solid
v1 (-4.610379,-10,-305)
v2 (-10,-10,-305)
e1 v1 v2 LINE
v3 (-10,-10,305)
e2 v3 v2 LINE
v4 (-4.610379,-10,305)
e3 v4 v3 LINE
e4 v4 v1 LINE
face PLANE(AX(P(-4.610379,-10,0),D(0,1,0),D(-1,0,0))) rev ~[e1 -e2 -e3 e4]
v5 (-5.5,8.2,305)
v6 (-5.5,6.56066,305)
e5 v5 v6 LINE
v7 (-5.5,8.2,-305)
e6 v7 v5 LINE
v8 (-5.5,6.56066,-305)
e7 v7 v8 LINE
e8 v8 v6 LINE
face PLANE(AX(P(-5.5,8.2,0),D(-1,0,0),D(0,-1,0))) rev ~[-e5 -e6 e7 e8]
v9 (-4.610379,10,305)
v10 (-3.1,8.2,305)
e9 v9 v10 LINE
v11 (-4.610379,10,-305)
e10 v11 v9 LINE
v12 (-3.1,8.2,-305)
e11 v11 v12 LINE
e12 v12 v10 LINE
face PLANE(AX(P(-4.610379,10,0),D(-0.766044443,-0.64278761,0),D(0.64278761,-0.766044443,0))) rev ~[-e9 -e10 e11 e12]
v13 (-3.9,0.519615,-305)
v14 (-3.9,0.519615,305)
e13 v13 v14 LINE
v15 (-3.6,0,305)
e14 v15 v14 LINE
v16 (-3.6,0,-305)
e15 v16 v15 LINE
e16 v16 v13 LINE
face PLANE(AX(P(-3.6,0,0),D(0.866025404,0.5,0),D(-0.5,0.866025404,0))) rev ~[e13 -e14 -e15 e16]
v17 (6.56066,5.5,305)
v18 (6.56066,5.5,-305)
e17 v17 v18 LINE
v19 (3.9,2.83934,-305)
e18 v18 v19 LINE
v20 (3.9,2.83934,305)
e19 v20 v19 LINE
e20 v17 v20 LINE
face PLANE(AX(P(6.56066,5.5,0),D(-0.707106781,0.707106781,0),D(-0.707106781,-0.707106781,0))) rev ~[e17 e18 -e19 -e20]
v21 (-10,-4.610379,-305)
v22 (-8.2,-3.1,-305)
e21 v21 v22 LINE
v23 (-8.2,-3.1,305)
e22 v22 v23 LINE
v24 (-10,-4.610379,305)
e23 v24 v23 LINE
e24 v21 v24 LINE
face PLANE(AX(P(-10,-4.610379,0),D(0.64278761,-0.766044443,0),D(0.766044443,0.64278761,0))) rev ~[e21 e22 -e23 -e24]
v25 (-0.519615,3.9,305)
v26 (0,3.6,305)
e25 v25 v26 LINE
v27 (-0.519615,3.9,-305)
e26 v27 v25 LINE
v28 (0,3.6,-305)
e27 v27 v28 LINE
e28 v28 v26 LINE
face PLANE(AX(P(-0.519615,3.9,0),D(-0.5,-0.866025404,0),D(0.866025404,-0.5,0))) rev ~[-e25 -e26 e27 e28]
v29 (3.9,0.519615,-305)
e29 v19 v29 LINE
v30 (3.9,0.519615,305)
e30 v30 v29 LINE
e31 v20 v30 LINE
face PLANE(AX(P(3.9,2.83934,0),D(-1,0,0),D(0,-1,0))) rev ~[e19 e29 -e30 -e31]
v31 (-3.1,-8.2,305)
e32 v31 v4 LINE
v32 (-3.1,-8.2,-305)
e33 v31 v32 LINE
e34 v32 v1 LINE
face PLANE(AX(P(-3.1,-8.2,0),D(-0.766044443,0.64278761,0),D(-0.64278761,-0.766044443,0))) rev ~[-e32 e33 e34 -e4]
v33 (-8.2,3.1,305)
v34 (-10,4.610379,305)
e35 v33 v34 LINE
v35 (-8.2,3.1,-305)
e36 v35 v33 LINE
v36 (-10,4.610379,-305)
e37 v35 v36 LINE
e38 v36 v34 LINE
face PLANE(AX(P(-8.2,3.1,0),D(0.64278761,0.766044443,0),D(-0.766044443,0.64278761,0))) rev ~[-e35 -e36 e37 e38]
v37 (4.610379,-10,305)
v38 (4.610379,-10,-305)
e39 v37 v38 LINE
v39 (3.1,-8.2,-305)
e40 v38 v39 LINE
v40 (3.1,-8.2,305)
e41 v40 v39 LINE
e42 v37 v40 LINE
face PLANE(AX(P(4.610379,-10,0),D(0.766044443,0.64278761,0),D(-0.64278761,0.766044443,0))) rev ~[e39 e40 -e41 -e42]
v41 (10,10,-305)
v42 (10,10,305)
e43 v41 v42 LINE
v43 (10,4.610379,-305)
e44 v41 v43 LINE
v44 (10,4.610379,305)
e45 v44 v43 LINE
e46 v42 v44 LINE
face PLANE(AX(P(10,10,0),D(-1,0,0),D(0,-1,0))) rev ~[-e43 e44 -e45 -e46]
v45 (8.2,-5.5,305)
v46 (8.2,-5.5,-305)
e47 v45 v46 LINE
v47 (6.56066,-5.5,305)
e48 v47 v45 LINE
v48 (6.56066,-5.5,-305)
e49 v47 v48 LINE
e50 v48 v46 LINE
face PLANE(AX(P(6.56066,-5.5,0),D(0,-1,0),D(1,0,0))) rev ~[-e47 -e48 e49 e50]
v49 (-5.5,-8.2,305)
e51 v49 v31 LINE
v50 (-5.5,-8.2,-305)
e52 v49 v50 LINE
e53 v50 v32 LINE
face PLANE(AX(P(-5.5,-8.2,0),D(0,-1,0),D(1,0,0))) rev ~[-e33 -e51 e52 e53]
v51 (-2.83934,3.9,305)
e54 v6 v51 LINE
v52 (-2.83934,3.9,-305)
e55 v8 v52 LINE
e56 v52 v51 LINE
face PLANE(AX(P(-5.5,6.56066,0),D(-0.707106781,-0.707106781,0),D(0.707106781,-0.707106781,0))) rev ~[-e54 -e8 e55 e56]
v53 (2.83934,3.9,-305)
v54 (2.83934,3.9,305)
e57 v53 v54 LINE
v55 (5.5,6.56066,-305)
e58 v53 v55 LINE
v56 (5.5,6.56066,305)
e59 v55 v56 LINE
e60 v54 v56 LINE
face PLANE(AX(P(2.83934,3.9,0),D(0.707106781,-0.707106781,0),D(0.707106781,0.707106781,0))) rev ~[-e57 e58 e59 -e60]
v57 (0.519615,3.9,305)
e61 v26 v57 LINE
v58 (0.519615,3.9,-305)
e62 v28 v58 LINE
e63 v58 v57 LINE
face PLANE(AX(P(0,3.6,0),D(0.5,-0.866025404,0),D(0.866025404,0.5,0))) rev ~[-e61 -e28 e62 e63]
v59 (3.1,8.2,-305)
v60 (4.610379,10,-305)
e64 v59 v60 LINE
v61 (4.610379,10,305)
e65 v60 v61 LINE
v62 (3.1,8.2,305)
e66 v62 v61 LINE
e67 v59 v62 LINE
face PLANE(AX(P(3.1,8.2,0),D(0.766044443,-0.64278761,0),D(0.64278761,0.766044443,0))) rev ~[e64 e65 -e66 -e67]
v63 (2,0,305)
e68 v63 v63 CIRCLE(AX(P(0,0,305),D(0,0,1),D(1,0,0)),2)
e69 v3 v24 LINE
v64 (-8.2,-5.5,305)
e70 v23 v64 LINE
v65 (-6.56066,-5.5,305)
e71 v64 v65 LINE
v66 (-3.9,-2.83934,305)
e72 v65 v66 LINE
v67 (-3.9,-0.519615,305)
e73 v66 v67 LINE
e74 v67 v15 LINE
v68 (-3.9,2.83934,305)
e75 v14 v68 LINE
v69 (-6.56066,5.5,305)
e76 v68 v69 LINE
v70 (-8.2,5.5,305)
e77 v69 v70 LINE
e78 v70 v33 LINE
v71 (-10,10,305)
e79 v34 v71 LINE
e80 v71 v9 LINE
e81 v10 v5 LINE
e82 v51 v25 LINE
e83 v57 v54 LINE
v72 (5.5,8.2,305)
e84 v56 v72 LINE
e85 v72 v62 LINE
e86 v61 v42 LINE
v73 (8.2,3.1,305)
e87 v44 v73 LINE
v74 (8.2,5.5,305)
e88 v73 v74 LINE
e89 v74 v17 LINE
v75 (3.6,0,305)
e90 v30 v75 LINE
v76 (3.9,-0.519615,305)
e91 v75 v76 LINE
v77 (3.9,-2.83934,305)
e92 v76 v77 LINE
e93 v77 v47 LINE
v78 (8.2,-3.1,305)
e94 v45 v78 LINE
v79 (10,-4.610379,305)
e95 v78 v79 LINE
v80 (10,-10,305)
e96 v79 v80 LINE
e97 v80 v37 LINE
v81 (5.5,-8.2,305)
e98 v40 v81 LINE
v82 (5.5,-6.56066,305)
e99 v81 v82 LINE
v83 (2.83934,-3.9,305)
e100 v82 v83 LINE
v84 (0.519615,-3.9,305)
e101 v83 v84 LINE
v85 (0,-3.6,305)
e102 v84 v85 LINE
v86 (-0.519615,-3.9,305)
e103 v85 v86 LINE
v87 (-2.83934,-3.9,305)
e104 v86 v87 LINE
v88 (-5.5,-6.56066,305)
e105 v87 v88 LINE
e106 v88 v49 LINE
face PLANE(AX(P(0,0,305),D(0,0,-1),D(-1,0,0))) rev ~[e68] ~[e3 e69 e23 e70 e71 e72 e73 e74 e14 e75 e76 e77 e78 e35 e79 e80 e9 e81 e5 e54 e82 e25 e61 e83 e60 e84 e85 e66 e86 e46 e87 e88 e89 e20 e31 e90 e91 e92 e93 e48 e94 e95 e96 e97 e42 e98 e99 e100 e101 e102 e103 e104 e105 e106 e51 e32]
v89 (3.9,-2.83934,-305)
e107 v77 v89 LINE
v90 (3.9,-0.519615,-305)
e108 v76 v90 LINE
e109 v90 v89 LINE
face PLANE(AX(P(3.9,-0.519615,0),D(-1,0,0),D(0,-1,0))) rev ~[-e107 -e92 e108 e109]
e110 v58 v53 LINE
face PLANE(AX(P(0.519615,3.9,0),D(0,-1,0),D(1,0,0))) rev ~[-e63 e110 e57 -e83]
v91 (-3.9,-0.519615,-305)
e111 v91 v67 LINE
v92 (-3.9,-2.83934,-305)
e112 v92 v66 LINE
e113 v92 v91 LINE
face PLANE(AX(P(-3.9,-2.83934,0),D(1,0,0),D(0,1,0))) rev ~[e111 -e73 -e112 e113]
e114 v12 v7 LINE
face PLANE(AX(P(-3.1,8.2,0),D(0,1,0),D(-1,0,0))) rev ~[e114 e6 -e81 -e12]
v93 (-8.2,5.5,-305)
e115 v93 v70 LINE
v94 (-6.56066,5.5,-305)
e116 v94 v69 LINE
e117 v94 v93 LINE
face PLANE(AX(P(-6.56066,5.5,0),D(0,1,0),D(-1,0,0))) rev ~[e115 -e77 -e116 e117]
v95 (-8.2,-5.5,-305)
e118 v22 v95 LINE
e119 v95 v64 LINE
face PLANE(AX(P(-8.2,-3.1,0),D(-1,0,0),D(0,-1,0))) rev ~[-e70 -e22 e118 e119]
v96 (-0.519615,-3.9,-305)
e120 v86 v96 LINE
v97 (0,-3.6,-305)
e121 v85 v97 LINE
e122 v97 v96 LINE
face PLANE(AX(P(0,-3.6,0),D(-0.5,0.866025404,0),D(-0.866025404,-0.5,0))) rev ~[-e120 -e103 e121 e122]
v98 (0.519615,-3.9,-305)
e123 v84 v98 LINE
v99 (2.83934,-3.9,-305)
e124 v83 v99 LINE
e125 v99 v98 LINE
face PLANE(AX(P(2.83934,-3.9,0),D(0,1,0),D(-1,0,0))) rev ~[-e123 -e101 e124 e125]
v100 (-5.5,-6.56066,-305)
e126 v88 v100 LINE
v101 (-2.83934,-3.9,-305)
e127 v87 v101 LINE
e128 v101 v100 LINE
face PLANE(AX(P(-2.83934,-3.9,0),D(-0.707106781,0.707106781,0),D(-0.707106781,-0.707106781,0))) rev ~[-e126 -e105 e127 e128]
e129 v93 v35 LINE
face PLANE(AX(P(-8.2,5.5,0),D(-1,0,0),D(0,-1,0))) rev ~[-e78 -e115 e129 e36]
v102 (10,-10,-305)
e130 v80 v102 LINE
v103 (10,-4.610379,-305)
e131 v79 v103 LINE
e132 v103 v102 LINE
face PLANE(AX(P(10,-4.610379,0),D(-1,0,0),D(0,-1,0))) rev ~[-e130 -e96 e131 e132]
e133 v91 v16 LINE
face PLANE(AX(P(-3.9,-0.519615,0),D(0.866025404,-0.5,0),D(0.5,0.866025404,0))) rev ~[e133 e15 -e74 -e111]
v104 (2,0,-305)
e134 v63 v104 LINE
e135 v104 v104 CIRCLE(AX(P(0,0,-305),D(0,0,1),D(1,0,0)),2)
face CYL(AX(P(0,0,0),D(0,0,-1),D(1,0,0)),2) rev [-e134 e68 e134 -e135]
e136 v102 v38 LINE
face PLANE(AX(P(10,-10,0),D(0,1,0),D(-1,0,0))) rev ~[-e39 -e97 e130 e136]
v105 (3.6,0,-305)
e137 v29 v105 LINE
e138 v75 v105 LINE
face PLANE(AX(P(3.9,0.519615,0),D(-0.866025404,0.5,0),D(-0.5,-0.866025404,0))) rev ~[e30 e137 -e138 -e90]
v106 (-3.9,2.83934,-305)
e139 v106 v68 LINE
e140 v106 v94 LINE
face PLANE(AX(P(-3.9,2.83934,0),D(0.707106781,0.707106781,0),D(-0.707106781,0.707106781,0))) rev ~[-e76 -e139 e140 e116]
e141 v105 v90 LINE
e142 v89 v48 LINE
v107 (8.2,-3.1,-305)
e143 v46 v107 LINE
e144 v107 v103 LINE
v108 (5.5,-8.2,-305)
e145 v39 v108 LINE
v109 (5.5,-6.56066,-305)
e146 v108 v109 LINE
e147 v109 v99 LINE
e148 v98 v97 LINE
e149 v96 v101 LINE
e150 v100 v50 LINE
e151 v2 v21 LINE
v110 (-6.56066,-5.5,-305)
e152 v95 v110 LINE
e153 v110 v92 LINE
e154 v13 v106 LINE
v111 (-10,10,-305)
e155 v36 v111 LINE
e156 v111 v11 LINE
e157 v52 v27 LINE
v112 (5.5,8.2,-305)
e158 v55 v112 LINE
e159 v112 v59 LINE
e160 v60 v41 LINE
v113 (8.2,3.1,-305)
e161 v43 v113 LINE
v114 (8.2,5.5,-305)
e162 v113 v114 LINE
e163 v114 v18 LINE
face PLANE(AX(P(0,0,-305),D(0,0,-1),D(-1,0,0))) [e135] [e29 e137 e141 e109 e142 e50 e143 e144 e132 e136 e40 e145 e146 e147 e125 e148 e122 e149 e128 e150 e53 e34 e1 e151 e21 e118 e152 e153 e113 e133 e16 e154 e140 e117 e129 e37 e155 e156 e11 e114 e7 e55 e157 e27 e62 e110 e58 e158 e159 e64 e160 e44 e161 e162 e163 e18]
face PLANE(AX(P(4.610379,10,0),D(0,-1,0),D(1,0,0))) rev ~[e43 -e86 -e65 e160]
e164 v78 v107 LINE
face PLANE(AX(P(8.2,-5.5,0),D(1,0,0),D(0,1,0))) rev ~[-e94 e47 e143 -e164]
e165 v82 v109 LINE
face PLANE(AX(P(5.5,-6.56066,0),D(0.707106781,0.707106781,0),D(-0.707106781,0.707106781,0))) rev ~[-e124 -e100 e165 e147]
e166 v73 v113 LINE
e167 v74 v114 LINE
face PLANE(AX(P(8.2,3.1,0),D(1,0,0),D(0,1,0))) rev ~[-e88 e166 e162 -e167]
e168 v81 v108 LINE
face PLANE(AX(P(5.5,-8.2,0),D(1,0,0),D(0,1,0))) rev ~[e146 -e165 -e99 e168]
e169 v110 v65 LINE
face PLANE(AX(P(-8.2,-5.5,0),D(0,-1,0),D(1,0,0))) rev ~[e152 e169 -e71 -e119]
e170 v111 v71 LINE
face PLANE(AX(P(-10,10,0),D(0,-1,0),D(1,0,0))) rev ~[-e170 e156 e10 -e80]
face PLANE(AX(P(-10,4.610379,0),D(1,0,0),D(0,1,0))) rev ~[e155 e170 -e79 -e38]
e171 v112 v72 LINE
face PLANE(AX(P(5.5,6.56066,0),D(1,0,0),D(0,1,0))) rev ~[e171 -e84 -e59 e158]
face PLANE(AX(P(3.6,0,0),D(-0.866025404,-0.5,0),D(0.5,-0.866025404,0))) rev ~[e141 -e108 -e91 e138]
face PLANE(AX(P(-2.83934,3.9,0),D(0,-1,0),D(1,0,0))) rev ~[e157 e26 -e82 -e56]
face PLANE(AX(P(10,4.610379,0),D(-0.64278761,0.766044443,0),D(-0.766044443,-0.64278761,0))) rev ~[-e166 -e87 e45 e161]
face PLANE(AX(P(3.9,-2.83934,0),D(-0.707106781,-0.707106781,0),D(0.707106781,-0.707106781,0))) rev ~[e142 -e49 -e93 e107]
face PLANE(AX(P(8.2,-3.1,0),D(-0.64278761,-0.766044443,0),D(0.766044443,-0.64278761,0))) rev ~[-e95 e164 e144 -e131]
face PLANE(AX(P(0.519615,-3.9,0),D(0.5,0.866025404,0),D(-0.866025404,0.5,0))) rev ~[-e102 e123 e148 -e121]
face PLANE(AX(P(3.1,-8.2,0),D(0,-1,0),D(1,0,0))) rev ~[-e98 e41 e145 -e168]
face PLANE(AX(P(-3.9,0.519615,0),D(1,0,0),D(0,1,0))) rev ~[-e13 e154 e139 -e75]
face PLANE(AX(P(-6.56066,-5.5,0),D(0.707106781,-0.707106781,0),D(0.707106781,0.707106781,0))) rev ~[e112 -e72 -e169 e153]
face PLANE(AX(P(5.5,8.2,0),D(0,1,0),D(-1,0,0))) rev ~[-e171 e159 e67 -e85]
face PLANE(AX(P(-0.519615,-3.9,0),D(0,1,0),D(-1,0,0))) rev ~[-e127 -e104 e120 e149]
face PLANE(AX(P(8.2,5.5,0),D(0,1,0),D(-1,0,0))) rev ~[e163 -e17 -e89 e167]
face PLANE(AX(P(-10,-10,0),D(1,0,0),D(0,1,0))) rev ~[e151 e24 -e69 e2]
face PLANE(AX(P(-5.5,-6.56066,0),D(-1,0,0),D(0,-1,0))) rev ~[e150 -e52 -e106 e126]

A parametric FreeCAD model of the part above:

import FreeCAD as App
import Part
import Sketcher

V = App.Vector
Q = App.Units.Quantity

doc = App.newDocument("Part")
body = doc.addObject("PartDesign::Body", "Body")

sketch1 = body.newObject("Sketcher::SketchObject", "Sketch")
sketch1.AttachmentSupport = (doc.getObject("XY_Plane"), [""])
sketch1.MapMode = "FlatFace"
sketch1.addGeometry([
    Part.LineSegment(V(10, 4.6, 0), V(10, 10, 0)),
    Part.LineSegment(V(10, 10, 0), V(4.6, 10, 0)),
    Part.LineSegment(V(4.6, 10, 0), V(3.1, 8.2, 0)),
    Part.LineSegment(V(3.1, 8.2, 0), V(5.5, 8.2, 0)),
    Part.LineSegment(V(5.5, 8.2, 0), V(5.5, 6.6, 0)),
    Part.LineSegment(V(5.5, 6.6, 0), V(2.8, 3.9, 0)),
    Part.LineSegment(V(2.8, 3.9, 0), V(0.5, 3.9, 0)),
    Part.LineSegment(V(0.5, 3.9, 0), V(0, 3.6, 0)),
    Part.LineSegment(V(0, 3.6, 0), V(-0.5, 3.9, 0)),
    Part.LineSegment(V(-0.5, 3.9, 0), V(-2.8, 3.9, 0)),
    Part.LineSegment(V(-2.8, 3.9, 0), V(-5.5, 6.6, 0)),
    Part.LineSegment(V(-5.5, 6.6, 0), V(-5.5, 8.2, 0)),
    Part.LineSegment(V(-5.5, 8.2, 0), V(-3.1, 8.2, 0)),
    Part.LineSegment(V(-3.1, 8.2, 0), V(-4.6, 10, 0)),
    Part.LineSegment(V(-4.6, 10, 0), V(-10, 10, 0)),
    Part.LineSegment(V(-10, 10, 0), V(-10, 4.6, 0)),
    Part.LineSegment(V(-10, 4.6, 0), V(-8.2, 3.1, 0)),
    Part.LineSegment(V(-8.2, 3.1, 0), V(-8.2, 5.5, 0)),
    Part.LineSegment(V(-8.2, 5.5, 0), V(-6.6, 5.5, 0)),
    Part.LineSegment(V(-6.6, 5.5, 0), V(-3.9, 2.8, 0)),
    Part.LineSegment(V(-3.9, 2.8, 0), V(-3.9, 0.5, 0)),
    Part.LineSegment(V(-3.9, 0.5, 0), V(-3.6, 0, 0)),
    Part.LineSegment(V(-3.6, 0, 0), V(-3.9, -0.5, 0)),
    Part.LineSegment(V(-3.9, -0.5, 0), V(-3.9, -2.8, 0)),
    Part.LineSegment(V(-3.9, -2.8, 0), V(-6.6, -5.5, 0)),
    Part.LineSegment(V(-6.6, -5.5, 0), V(-8.2, -5.5, 0)),
    Part.LineSegment(V(-8.2, -5.5, 0), V(-8.2, -3.1, 0)),
    Part.LineSegment(V(-8.2, -3.1, 0), V(-10, -4.6, 0)),
    Part.LineSegment(V(-10, -4.6, 0), V(-10, -10, 0)),
    Part.LineSegment(V(-10, -10, 0), V(-4.6, -10, 0)),
    Part.LineSegment(V(-4.6, -10, 0), V(-3.1, -8.2, 0)),
    Part.LineSegment(V(-3.1, -8.2, 0), V(-5.5, -8.2, 0)),
    Part.LineSegment(V(-5.5, -8.2, 0), V(-5.5, -6.6, 0)),
    Part.LineSegment(V(-5.5, -6.6, 0), V(-2.8, -3.9, 0)),
    Part.LineSegment(V(-2.8, -3.9, 0), V(-0.5, -3.9, 0)),
    Part.LineSegment(V(-0.5, -3.9, 0), V(0, -3.6, 0)),
    Part.LineSegment(V(0, -3.6, 0), V(0.5, -3.9, 0)),
    Part.LineSegment(V(0.5, -3.9, 0), V(2.8, -3.9, 0)),
    Part.LineSegment(V(2.8, -3.9, 0), V(5.5, -6.6, 0)),
    Part.LineSegment(V(5.5, -6.6, 0), V(5.5, -8.2, 0)),
    Part.LineSegment(V(5.5, -8.2, 0), V(3.1, -8.2, 0)),
    Part.LineSegment(V(3.1, -8.2, 0), V(4.6, -10, 0)),
    Part.LineSegment(V(4.6, -10, 0), V(10, -10, 0)),
    Part.LineSegment(V(10, -10, 0), V(10, -4.6, 0)),
    Part.LineSegment(V(10, -4.6, 0), V(8.2, -3.1, 0)),
    Part.LineSegment(V(8.2, -3.1, 0), V(8.2, -5.5, 0)),
    Part.LineSegment(V(8.2, -5.5, 0), V(6.6, -5.5, 0)),
    Part.LineSegment(V(6.6, -5.5, 0), V(3.9, -2.8, 0)),
    Part.LineSegment(V(3.9, -2.8, 0), V(3.9, -0.5, 0)),
    Part.LineSegment(V(3.9, -0.5, 0), V(3.6, 0, 0)),
    Part.LineSegment(V(3.6, 0, 0), V(3.9, 0.5, 0)),
    Part.LineSegment(V(3.9, 0.5, 0), V(3.9, 2.8, 0)),
    Part.LineSegment(V(3.9, 2.8, 0), V(6.6, 5.5, 0)),
    Part.LineSegment(V(6.6, 5.5, 0), V(8.2, 5.5, 0)),
    Part.LineSegment(V(8.2, 5.5, 0), V(8.2, 3.1, 0)),
    Part.LineSegment(V(8.2, 3.1, 0), V(10, 4.6, 0)),
    Part.Circle(V(0, 0, 0), V(0, 0, 1), 2),
], False)
sketch1.addConstraint([
    Sketcher.Constraint("Coincident", 0, 2, 1, 1),
    Sketcher.Constraint("Coincident", 1, 2, 2, 1),
    Sketcher.Constraint("Coincident", 2, 2, 3, 1),
    Sketcher.Constraint("Coincident", 3, 2, 4, 1),
    Sketcher.Constraint("Coincident", 4, 2, 5, 1),
    Sketcher.Constraint("Coincident", 5, 2, 6, 1),
    Sketcher.Constraint("Coincident", 6, 2, 7, 1),
    Sketcher.Constraint("Coincident", 7, 2, 8, 1),
    Sketcher.Constraint("Coincident", 8, 2, 9, 1),
    Sketcher.Constraint("Coincident", 9, 2, 10, 1),
    Sketcher.Constraint("Coincident", 10, 2, 11, 1),
    Sketcher.Constraint("Coincident", 11, 2, 12, 1),
    Sketcher.Constraint("Coincident", 12, 2, 13, 1),
    Sketcher.Constraint("Coincident", 13, 2, 14, 1),
    Sketcher.Constraint("Coincident", 14, 2, 15, 1),
    Sketcher.Constraint("Coincident", 15, 2, 16, 1),
    Sketcher.Constraint("Coincident", 16, 2, 17, 1),
    Sketcher.Constraint("Coincident", 17, 2, 18, 1),
    Sketcher.Constraint("Coincident", 18, 2, 19, 1),
    Sketcher.Constraint("Coincident", 19, 2, 20, 1),
    Sketcher.Constraint("Coincident", 20, 2, 21, 1),
    Sketcher.Constraint("Coincident", 21, 2, 22, 1),
    Sketcher.Constraint("Coincident", 22, 2, 23, 1),
    Sketcher.Constraint("Coincident", 23, 2, 24, 1),
    Sketcher.Constraint("Coincident", 24, 2, 25, 1),
    Sketcher.Constraint("Coincident", 25, 2, 26, 1),
    Sketcher.Constraint("Coincident", 26, 2, 27, 1),
    Sketcher.Constraint("Coincident", 27, 2, 28, 1),
    Sketcher.Constraint("Coincident", 28, 2, 29, 1),
    Sketcher.Constraint("Coincident", 29, 2, 30, 1),
    Sketcher.Constraint("Coincident", 30, 2, 31, 1),
    Sketcher.Constraint("Coincident", 31, 2, 32, 1),
    Sketcher.Constraint("Coincident", 32, 2, 33, 1),
    Sketcher.Constraint("Coincident", 33, 2, 34, 1),
    Sketcher.Constraint("Coincident", 34, 2, 35, 1),
    Sketcher.Constraint("Coincident", 35, 2, 36, 1),
    Sketcher.Constraint("Coincident", 36, 2, 37, 1),
    Sketcher.Constraint("Coincident", 37, 2, 38, 1),
    Sketcher.Constraint("Coincident", 38, 2, 39, 1),
    Sketcher.Constraint("Coincident", 39, 2, 40, 1),
    Sketcher.Constraint("Coincident", 40, 2, 41, 1),
    Sketcher.Constraint("Coincident", 41, 2, 42, 1),
    Sketcher.Constraint("Coincident", 42, 2, 43, 1),
    Sketcher.Constraint("Coincident", 43, 2, 44, 1),
    Sketcher.Constraint("Coincident", 44, 2, 45, 1),
    Sketcher.Constraint("Coincident", 45, 2, 46, 1),
    Sketcher.Constraint("Coincident", 46, 2, 47, 1),
    Sketcher.Constraint("Coincident", 47, 2, 48, 1),
    Sketcher.Constraint("Coincident", 48, 2, 49, 1),
    Sketcher.Constraint("Coincident", 49, 2, 50, 1),
    Sketcher.Constraint("Coincident", 50, 2, 51, 1),
    Sketcher.Constraint("Coincident", 51, 2, 52, 1),
    Sketcher.Constraint("Coincident", 52, 2, 53, 1),
    Sketcher.Constraint("Coincident", 53, 2, 54, 1),
    Sketcher.Constraint("Coincident", 54, 2, 55, 1),
    Sketcher.Constraint("Coincident", 55, 2, 0, 1),
    Sketcher.Constraint("Vertical", 0),
    Sketcher.Constraint("Horizontal", 1),
    Sketcher.Constraint("Horizontal", 3),
    Sketcher.Constraint("Vertical", 4),
    Sketcher.Constraint("Horizontal", 6),
    Sketcher.Constraint("Horizontal", 9),
    Sketcher.Constraint("Vertical", 11),
    Sketcher.Constraint("Horizontal", 12),
    Sketcher.Constraint("Horizontal", 14),
    Sketcher.Constraint("Vertical", 15),
    Sketcher.Constraint("Vertical", 17),
    Sketcher.Constraint("Horizontal", 18),
    Sketcher.Constraint("Vertical", 20),
    Sketcher.Constraint("Vertical", 23),
    Sketcher.Constraint("Horizontal", 25),
    Sketcher.Constraint("Vertical", 26),
    Sketcher.Constraint("Vertical", 28),
    Sketcher.Constraint("Horizontal", 29),
    Sketcher.Constraint("Horizontal", 31),
    Sketcher.Constraint("Vertical", 32),
    Sketcher.Constraint("Horizontal", 34),
    Sketcher.Constraint("Horizontal", 37),
    Sketcher.Constraint("Vertical", 39),
    Sketcher.Constraint("Horizontal", 40),
    Sketcher.Constraint("Horizontal", 42),
    Sketcher.Constraint("Vertical", 43),
    Sketcher.Constraint("Vertical", 45),
    Sketcher.Constraint("Horizontal", 46),
    Sketcher.Constraint("Vertical", 48),
    Sketcher.Constraint("Vertical", 51),
    Sketcher.Constraint("Horizontal", 53),
    Sketcher.Constraint("Vertical", 54),
    Sketcher.Constraint("Coincident", 56, 3, -1, 1),
    Sketcher.Constraint("Symmetric", 0, 2, 28, 2, -1, 1),
    Sketcher.Constraint("Symmetric", 2, 2, 30, 2, -1, 1),
    Sketcher.Constraint("Symmetric", 4, 2, 32, 2, -1, 1),
    Sketcher.Constraint("Symmetric", 5, 2, 33, 2, -1, 1),
    Sketcher.Constraint("Symmetric", 7, 2, 35, 2, -1, 1),
    Sketcher.Constraint("Symmetric", 8, 2, 36, 2, -1, 1),
    Sketcher.Constraint("Symmetric", 10, 2, 38, 2, -1, 1),
    Sketcher.Constraint("Symmetric", 12, 2, 40, 2, -1, 1),
    Sketcher.Constraint("Symmetric", 13, 2, 41, 2, -1, 1),
    Sketcher.Constraint("Symmetric", 15, 2, 43, 2, -1, 1),
    Sketcher.Constraint("Symmetric", 16, 2, 44, 2, -1, 1),
    Sketcher.Constraint("Symmetric", 18, 2, 46, 2, -1, 1),
    Sketcher.Constraint("Symmetric", 19, 2, 47, 2, -1, 1),
    Sketcher.Constraint("Symmetric", 21, 2, 49, 2, -1, 1),
    Sketcher.Constraint("Symmetric", 22, 2, 50, 2, -1, 1),
    Sketcher.Constraint("Symmetric", 24, 2, 52, 2, -1, 1),
    Sketcher.Constraint("Symmetric", 26, 2, 54, 2, -1, 1),
    Sketcher.Constraint("Symmetric", 6, 2, 8, 2, -2),
    Sketcher.Constraint("Symmetric", 4, 2, 10, 2, -2),
    Sketcher.Constraint("Symmetric", 2, 2, 12, 2, -2),
    Sketcher.Constraint("Symmetric", 1, 2, 13, 2, -2),
    Sketcher.Constraint("Symmetric", 27, 2, 43, 2, -2),
    Sketcher.Constraint("Symmetric", 26, 2, 44, 2, -2),
    Sketcher.Constraint("Symmetric", 24, 2, 46, 2, -2),
    Sketcher.Constraint("Symmetric", 23, 2, 47, 2, -2),
    Sketcher.Constraint("PointOnObject", 7, 2, -2),
    Sketcher.Constraint("PointOnObject", 21, 2, -1),
    Sketcher.Constraint("Perpendicular", 5, 10),
    Sketcher.Constraint("Perpendicular", 2, 16),
    Sketcher.Constraint("Parallel", 10, 19),
    Sketcher.Constraint("Perpendicular", 7, 21),
    Sketcher.Constraint("Perpendicular", 8, 22),
    Sketcher.Constraint("Perpendicular", 19, 24),
    Sketcher.Constraint("Perpendicular", 16, 30),
    Sketcher.Constraint("Perpendicular", 21, 35),
    Sketcher.Constraint("Perpendicular", 33, 38),
    Sketcher.Constraint("Perpendicular", 35, 49),
    Sketcher.Constraint("Perpendicular", 47, 52),
    Sketcher.Constraint("Perpendicular", 41, 55),
    Sketcher.Constraint("Equal", 42, 0),
    Sketcher.Constraint("Equal", 53, 4),
    Sketcher.Constraint("Equal", 40, 17),
    Sketcher.Constraint("Equal", 37, 20),
    Sketcher.Constraint("Equal", 13, 16),
    Sketcher.Constraint("Equal", 10, 19),
    Sketcher.Constraint("Equal", 8, 21),
    Sketcher.Constraint("Diameter", 56, 4.0),
    Sketcher.Constraint("Angle", 2, Q("-130 deg")),
    Sketcher.Constraint("Angle", 7, Q("-150 deg")),
    Sketcher.Constraint("DistanceX", 3, 1, 3, 2, 2.4),
    Sketcher.Constraint("DistanceX", -1, 1, 0, 2, 10.0),
    Sketcher.Constraint("Distance", 7, 0.6),
    Sketcher.Constraint("DistanceX", -1, 1, 2, 2, 3.1),
    Sketcher.Constraint("DistanceY", -1, 1, 2, 2, 8.2),
    Sketcher.Constraint("DistanceY", -1, 1, 5, 2, 3.9),
    Sketcher.Constraint("DistanceX", 18, 1, 18, 2, 1.63934),
])
pad1 = body.newObject("PartDesign::Pad", "Pad")
pad1.Profile = sketch1
pad1.Length = 610
pad1.Midplane = True

doc.recompute()
